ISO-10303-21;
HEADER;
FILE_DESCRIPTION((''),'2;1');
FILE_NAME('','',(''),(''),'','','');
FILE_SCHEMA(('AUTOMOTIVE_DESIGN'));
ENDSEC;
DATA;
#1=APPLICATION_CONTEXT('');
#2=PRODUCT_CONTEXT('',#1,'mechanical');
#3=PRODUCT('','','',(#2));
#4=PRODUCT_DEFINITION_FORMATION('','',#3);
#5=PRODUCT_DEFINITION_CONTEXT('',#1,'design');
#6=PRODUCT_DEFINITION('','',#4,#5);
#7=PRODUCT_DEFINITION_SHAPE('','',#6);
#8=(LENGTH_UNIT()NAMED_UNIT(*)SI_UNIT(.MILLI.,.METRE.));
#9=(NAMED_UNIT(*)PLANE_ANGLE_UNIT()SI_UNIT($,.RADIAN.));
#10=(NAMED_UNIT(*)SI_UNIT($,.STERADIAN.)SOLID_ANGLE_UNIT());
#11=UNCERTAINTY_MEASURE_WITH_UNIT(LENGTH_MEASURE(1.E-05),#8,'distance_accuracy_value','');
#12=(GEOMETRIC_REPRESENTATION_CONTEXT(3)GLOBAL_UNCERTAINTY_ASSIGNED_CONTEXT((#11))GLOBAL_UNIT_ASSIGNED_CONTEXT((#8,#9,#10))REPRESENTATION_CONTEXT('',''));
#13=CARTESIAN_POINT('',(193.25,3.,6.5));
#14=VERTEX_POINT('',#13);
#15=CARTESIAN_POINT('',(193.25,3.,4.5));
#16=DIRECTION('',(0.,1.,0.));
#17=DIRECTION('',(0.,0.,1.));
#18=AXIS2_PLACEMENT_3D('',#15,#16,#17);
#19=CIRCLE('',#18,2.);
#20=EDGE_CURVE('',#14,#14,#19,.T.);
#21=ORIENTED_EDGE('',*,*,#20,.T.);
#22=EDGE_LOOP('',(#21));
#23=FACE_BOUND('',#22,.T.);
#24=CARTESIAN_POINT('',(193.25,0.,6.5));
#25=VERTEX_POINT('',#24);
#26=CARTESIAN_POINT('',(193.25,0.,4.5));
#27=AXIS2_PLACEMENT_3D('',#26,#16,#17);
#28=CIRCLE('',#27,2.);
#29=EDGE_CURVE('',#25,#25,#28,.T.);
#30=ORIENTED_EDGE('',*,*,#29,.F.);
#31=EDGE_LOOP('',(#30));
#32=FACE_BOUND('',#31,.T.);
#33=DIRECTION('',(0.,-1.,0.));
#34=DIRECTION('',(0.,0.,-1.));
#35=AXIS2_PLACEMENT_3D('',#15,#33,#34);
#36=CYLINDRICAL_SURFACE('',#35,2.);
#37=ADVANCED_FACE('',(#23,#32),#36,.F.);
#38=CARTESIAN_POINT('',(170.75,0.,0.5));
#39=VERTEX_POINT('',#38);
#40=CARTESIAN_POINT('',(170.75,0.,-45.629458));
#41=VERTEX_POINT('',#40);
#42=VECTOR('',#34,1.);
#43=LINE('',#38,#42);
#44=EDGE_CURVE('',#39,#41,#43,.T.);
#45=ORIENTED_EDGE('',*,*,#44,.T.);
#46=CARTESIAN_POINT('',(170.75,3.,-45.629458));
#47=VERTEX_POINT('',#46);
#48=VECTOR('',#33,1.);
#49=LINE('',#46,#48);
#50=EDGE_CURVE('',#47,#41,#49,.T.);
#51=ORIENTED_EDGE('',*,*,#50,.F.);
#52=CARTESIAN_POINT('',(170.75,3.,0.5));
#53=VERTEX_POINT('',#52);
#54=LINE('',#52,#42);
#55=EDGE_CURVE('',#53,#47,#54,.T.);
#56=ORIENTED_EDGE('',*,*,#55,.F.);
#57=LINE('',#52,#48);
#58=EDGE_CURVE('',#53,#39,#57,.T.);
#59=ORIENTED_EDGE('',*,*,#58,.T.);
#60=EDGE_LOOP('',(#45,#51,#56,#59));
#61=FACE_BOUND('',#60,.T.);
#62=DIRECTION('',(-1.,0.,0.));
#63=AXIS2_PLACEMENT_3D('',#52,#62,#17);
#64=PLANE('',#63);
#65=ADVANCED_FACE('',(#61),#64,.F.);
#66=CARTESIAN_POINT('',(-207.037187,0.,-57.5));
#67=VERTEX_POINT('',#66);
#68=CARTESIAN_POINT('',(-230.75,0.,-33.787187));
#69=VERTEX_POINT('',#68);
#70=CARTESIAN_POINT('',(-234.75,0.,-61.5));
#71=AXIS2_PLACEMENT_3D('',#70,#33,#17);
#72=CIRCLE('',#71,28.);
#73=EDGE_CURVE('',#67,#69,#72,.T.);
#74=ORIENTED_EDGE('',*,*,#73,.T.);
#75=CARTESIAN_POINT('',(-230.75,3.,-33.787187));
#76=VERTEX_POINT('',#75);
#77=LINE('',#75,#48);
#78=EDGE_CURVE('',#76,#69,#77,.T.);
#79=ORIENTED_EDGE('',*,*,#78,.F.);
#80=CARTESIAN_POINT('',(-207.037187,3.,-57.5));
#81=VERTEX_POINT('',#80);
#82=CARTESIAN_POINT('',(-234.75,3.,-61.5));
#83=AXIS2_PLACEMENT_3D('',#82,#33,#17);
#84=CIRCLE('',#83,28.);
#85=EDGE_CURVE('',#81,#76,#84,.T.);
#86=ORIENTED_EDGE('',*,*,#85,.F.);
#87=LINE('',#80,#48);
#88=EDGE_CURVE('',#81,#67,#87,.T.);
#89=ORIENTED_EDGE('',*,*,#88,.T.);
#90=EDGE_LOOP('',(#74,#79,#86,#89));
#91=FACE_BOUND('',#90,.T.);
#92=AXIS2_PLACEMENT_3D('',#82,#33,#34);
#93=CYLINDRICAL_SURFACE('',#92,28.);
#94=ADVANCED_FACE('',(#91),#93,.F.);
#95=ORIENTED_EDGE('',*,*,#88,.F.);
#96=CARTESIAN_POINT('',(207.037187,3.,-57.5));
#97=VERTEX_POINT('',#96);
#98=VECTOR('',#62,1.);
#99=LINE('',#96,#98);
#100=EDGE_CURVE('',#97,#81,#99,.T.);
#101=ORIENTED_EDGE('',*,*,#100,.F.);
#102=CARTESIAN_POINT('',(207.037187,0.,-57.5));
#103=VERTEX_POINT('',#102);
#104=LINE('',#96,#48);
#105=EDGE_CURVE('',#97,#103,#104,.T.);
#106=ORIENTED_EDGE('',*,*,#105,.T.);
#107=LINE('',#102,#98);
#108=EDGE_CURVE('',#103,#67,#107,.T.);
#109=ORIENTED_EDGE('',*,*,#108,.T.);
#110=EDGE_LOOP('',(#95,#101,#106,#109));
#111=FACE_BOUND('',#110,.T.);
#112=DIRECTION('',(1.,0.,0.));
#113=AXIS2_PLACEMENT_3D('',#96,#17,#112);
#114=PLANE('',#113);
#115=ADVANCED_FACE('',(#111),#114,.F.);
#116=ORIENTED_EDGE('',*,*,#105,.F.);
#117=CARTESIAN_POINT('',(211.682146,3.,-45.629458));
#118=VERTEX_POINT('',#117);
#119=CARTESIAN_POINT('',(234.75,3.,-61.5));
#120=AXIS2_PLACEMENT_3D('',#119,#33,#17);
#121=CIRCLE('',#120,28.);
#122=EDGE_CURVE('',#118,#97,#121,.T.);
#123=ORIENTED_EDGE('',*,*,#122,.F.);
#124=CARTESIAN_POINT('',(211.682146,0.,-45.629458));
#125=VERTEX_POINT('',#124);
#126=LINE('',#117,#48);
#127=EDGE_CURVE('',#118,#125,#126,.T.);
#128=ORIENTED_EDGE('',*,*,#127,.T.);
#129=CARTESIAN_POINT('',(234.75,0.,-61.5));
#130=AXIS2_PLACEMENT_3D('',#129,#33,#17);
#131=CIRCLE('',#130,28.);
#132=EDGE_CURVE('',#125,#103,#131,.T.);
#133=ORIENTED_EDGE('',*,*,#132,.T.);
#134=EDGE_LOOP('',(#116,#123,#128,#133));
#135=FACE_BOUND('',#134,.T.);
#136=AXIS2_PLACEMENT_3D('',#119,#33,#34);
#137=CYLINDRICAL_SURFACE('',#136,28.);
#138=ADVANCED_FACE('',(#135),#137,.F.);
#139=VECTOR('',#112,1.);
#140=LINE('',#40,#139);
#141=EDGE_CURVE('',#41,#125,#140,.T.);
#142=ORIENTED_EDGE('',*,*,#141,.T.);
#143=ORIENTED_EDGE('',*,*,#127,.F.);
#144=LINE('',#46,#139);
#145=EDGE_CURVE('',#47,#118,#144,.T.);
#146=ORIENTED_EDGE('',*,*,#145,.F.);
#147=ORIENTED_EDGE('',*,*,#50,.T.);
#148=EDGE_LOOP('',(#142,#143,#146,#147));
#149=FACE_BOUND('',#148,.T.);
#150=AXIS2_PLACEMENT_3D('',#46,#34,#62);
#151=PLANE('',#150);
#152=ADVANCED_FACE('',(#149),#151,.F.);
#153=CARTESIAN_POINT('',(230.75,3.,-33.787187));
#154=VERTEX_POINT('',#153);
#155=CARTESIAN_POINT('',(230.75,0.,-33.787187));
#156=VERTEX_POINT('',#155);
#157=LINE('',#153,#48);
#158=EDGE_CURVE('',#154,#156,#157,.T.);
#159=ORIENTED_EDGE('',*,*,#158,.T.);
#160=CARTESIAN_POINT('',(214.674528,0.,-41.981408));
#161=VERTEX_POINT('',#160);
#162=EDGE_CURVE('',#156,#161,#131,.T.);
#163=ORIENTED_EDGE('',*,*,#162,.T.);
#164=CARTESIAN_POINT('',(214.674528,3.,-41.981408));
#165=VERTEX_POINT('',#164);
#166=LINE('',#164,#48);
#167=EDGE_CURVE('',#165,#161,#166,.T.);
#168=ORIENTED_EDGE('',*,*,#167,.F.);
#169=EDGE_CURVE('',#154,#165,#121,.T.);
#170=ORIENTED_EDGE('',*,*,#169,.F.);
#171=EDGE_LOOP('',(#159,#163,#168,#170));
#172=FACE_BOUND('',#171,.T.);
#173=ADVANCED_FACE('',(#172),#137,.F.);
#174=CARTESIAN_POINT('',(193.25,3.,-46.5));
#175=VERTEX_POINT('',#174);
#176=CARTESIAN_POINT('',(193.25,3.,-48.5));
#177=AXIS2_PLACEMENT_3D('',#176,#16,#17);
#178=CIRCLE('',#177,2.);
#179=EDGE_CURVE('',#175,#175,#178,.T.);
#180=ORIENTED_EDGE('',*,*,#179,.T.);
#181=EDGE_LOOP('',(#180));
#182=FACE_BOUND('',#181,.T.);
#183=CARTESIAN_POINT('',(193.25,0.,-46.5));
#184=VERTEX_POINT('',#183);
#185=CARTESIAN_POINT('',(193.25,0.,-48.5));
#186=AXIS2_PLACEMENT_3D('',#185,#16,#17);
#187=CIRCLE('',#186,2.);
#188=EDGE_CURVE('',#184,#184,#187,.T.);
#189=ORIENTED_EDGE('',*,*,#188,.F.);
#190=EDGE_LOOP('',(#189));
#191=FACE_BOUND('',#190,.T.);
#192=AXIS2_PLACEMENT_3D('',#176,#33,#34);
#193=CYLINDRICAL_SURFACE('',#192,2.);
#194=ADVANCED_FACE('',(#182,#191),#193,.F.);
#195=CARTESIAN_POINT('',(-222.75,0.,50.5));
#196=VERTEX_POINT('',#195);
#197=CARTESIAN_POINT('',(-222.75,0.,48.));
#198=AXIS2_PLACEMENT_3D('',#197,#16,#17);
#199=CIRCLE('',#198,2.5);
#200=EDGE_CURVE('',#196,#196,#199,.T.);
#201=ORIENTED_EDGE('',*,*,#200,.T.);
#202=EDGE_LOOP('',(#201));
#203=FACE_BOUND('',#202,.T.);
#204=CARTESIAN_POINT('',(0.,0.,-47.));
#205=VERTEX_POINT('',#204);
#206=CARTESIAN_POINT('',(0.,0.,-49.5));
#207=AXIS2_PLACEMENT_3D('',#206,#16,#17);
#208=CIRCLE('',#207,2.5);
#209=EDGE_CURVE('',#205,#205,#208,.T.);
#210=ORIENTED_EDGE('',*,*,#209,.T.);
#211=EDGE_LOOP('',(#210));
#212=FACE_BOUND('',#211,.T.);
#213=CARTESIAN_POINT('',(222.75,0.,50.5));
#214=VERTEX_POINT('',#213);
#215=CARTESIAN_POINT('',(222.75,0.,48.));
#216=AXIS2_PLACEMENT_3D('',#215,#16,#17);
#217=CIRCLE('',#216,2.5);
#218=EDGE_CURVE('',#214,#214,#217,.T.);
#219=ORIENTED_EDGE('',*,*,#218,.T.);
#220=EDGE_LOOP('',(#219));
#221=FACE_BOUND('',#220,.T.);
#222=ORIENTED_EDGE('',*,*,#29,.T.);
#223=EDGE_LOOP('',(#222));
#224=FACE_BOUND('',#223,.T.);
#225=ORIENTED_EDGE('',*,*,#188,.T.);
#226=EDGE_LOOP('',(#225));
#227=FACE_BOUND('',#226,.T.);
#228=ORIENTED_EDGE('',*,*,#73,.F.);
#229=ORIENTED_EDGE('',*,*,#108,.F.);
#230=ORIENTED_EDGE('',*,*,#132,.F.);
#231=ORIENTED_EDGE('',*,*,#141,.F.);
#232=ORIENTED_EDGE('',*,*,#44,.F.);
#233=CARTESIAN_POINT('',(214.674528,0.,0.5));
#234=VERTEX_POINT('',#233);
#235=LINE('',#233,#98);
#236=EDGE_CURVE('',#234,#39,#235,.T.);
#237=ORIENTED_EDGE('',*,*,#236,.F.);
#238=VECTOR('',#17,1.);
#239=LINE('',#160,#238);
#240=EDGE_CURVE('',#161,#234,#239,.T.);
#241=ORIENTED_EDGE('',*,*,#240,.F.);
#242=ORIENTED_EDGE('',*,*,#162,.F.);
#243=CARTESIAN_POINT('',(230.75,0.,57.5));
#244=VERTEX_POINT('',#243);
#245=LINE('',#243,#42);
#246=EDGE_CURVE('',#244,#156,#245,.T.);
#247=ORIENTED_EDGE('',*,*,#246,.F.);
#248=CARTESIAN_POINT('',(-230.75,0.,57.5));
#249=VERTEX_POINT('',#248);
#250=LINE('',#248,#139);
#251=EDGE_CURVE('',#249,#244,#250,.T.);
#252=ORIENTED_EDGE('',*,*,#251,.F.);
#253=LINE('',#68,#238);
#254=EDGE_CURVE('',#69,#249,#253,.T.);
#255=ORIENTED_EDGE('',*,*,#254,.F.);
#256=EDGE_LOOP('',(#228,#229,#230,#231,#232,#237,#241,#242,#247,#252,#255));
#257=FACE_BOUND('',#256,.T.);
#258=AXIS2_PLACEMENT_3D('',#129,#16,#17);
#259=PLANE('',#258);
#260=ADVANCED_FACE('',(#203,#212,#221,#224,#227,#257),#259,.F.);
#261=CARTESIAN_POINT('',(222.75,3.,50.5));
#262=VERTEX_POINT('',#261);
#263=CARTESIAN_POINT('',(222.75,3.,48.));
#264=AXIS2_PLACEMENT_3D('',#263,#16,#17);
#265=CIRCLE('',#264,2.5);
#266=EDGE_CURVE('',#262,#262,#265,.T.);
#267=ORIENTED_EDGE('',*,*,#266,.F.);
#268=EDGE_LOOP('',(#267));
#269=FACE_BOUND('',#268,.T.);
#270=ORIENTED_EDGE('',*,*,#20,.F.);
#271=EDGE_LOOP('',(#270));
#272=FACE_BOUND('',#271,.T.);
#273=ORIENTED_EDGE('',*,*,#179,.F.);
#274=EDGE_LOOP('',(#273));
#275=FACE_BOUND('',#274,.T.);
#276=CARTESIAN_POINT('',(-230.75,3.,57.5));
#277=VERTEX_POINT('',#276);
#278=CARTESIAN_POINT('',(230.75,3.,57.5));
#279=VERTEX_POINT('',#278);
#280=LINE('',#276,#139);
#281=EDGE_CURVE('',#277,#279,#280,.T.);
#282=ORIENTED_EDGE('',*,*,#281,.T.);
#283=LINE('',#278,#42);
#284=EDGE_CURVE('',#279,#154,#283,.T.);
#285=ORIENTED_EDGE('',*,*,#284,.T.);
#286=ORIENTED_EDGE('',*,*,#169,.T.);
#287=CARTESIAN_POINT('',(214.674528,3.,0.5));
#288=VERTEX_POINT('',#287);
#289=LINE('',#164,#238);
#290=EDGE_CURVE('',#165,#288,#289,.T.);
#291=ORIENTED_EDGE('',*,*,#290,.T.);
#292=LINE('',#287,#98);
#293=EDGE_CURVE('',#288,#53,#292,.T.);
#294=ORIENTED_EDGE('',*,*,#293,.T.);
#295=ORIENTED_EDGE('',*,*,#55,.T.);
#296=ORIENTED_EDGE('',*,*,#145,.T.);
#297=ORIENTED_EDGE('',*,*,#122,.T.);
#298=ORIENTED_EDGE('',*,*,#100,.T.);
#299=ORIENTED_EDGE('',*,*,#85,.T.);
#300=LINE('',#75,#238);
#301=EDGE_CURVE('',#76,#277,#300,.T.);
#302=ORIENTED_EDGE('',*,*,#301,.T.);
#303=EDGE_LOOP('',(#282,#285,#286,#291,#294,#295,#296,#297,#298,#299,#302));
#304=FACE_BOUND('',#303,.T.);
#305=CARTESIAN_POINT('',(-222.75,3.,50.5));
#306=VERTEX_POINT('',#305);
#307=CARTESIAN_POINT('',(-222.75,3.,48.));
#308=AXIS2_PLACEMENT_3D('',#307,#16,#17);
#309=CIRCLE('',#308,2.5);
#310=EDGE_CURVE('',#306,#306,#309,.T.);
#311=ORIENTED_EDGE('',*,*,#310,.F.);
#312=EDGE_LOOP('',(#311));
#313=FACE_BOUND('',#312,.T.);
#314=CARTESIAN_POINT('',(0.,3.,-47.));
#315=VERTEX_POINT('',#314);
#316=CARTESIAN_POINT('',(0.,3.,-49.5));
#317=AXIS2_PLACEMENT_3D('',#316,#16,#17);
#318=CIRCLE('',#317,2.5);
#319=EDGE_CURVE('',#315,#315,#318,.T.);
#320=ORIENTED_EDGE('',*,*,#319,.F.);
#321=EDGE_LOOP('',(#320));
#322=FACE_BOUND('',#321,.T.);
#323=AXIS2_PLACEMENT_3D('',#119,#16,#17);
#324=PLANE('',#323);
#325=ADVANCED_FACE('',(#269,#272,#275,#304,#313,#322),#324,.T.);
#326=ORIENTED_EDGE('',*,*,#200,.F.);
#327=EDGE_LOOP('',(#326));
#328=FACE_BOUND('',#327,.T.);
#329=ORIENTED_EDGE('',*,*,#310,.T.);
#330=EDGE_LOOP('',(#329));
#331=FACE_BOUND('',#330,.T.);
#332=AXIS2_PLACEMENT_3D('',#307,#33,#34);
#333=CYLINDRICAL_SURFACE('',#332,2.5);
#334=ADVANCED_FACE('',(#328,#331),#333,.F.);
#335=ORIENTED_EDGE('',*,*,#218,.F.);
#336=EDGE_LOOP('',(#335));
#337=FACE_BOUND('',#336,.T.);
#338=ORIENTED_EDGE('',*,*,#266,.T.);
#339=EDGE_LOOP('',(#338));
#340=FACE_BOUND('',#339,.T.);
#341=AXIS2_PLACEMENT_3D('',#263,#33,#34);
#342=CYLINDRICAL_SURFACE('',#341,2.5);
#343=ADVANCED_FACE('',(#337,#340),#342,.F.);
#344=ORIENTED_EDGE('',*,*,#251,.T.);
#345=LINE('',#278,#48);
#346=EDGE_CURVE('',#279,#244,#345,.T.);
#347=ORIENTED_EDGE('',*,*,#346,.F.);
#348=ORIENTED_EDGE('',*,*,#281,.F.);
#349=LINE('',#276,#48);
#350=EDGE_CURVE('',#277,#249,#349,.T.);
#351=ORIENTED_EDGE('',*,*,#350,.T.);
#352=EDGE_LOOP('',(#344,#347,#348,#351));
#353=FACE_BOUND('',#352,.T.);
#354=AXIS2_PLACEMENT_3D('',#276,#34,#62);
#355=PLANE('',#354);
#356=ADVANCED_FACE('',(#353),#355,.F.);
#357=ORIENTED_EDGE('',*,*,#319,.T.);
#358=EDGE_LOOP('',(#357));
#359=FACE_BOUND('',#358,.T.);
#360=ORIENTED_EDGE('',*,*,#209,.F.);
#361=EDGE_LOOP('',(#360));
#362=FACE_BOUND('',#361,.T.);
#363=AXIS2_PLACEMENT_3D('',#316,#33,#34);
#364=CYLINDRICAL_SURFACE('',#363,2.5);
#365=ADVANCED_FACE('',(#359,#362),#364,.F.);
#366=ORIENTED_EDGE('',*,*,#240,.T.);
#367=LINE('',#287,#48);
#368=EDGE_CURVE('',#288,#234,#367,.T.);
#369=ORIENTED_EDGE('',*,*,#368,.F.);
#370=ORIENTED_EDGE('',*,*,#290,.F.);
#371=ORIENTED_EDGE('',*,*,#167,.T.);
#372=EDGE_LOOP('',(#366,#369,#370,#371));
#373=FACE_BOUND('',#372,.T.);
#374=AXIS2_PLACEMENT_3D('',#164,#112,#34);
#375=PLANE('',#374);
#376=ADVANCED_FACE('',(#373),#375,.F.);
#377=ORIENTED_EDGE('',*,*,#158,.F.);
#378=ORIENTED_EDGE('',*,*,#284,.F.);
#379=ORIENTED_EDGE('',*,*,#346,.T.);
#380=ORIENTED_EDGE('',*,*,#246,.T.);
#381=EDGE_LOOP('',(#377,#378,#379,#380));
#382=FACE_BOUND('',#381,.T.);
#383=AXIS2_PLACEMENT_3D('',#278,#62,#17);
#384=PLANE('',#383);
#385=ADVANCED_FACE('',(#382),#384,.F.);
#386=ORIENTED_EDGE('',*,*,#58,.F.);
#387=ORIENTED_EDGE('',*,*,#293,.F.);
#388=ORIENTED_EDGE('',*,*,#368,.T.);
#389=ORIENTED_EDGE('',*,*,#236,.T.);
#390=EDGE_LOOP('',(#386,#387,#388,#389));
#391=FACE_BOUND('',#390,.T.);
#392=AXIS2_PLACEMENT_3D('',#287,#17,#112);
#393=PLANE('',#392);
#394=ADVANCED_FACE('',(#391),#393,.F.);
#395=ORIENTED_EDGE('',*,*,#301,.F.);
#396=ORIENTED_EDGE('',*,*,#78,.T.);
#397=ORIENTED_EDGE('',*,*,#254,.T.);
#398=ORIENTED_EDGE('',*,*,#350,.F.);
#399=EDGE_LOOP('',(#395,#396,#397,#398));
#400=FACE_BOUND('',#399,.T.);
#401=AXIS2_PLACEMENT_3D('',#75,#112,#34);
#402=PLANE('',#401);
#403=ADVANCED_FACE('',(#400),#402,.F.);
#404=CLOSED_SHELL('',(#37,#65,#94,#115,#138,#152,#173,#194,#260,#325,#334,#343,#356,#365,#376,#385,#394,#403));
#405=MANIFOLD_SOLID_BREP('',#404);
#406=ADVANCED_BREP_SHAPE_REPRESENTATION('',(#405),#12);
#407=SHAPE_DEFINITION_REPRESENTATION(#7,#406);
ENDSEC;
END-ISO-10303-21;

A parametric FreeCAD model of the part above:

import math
import FreeCAD as App
import Part
import Sketcher

V = App.Vector
Q = App.Units.Quantity

doc = App.newDocument("Part")
params = doc.addObject("Spreadsheet::Sheet", "Params")
for row, (alias, value) in enumerate([
    ("sketch1_diameter", "5 mm"),
    ("sketch1_diameter2", "4 mm"),
    ("sketch1_radius", "28 mm"),
    ("sketch1_width", "461.5 mm"),
    ("pad1_length", "3 mm"),
], start=1):
    params.set(f"A{row}", alias)
    params.set(f"B{row}", "=" + value)
    params.setAlias(f"B{row}", alias)

body = doc.addObject("PartDesign::Body", "Body")

# Sketch on XZ plane
sketch1 = body.newObject("Sketcher::SketchObject", "Sketch")
sketch1.AttachmentSupport = (doc.getObject("XZ_Plane"), [""])
sketch1.MapMode = "FlatFace"
sketch1.addGeometry([
    Part.LineSegment(V(-230.75, 57.5, 0), V(230.75, 57.5, 0)),  # 0
    Part.LineSegment(V(230.75, 57.5, 0), V(230.75, -33.787187, 0)),  # 1
    Part.ArcOfCircle(Part.Circle(V(234.75, -61.5, 0), V(0, 0, 1), 28), math.radians(98.213211), math.radians(135.805796)),  # 2
    Part.LineSegment(V(214.674528, -41.981408, 0), V(214.674528, 0.5, 0)),  # 3
    Part.LineSegment(V(214.674528, 0.5, 0), V(170.75, 0.5, 0)),  # 4
    Part.LineSegment(V(170.75, 0.5, 0), V(170.75, -45.629458, 0)),  # 5
    Part.LineSegment(V(170.75, -45.629458, 0), V(211.682146, -45.629458, 0)),  # 6
    Part.ArcOfCircle(Part.Circle(V(234.75, -61.5, 0), V(0, 0, 1), 28), math.radians(145.472268), math.radians(171.786789)),  # 7
    Part.LineSegment(V(207.037187, -57.5, 0), V(-207.037187, -57.5, 0)),  # 8
    Part.ArcOfCircle(Part.Circle(V(-234.75, -61.5, 0), V(0, 0, 1), 28), math.radians(8.213211), math.radians(81.786789)),  # 9
    Part.LineSegment(V(-230.75, -33.787187, 0), V(-230.75, 57.5, 0)),  # 10
    Part.Circle(V(-222.75, 48, 0), V(0, 0, 1), 2.5),  # 11
    Part.Circle(V(222.75, 48, 0), V(0, 0, 1), 2.5),  # 12
    Part.Circle(V(193.25, 4.5, 0), V(0, 0, 1), 2),  # 13
    Part.Circle(V(0, -49.5, 0), V(0, 0, 1), 2.5),  # 14
    Part.Circle(V(193.25, -48.5, 0), V(0, 0, 1), 2),  # 15
], False)
sketch1.addConstraint([
    Sketcher.Constraint("Coincident", 0, 2, 1, 1),
    Sketcher.Constraint("Coincident", 1, 2, 2, 1),
    Sketcher.Constraint("Coincident", 2, 2, 3, 1),
    Sketcher.Constraint("Coincident", 3, 2, 4, 1),
    Sketcher.Constraint("Coincident", 4, 2, 5, 1),
    Sketcher.Constraint("Coincident", 5, 2, 6, 1),
    Sketcher.Constraint("Coincident", 6, 2, 7, 1),
    Sketcher.Constraint("Coincident", 7, 2, 8, 1),
    Sketcher.Constraint("Coincident", 8, 2, 9, 1),
    Sketcher.Constraint("Coincident", 9, 2, 10, 1),
    Sketcher.Constraint("Coincident", 10, 2, 0, 1),
    Sketcher.Constraint("Horizontal", 0),
    Sketcher.Constraint("Vertical", 1),
    Sketcher.Constraint("Vertical", 3),
    Sketcher.Constraint("Horizontal", 4),
    Sketcher.Constraint("Vertical", 5),
    Sketcher.Constraint("Horizontal", 6),
    Sketcher.Constraint("Horizontal", 8),
    Sketcher.Constraint("Vertical", 10),
    Sketcher.Constraint("Coincident", 7, 3, 2, 3),
    Sketcher.Constraint("Equal", 2, 7),
    Sketcher.Constraint("Equal", 7, 9),
    Sketcher.Constraint("Equal", 11, 12),
    Sketcher.Constraint("Equal", 12, 14),
    Sketcher.Constraint("Equal", 13, 15),
    Sketcher.Constraint("Symmetric", 2, 3, 9, 3, -2),
    Sketcher.Constraint("Symmetric", 11, 3, 12, 3, -2),
    Sketcher.Constraint("PointOnObject", 14, 3, -2),
    Sketcher.Constraint("Horizontal", 1, 2, 9, 2),
    Sketcher.Constraint("Vertical", 13, 3, 15, 3),
    Sketcher.Constraint("Diameter", 11, Q("5 mm")),
    Sketcher.Constraint("Diameter", 13, Q("4 mm")),
    Sketcher.Constraint("Radius", 2, Q("28 mm")),
    Sketcher.Constraint("DistanceX", 0, 1, 0, 2, Q("461.5 mm")),
    Sketcher.Constraint("DistanceY", -1, 1, 11, 3, Q("48 mm")),
    Sketcher.Constraint("DistanceX", 9, 3, 11, 3, Q("12 mm")),
    Sketcher.Constraint("DistanceY", 2, 3, 13, 3, Q("66 mm")),
    Sketcher.Constraint("DistanceX", 11, 3, 13, 3, Q("416 mm")),
    Sketcher.Constraint("DistanceY", 14, 3, 13, 3, Q("54 mm")),
    Sketcher.Constraint("DistanceY", 2, 3, 15, 3, Q("13 mm")),
    Sketcher.Constraint("DistanceX", 12, 3, 0, 2, Q("8 mm")),
    Sketcher.Constraint("DistanceY", 13, 3, 0, 2, Q("53 mm")),
    Sketcher.Constraint("DistanceY", 3, 2, 13, 3, Q("4 mm")),
    Sketcher.Constraint("DistanceX", 4, 2, 1, 2, Q("60 mm")),
    Sketcher.Constraint("DistanceY", 7, 2, 15, 3, Q("9 mm")),
    Sketcher.Constraint("DistanceY", 2, 3, -1, 1, Q("61.5 mm")),
    Sketcher.Constraint("DistanceX", 4, 2, 4, 1, Q("43.924528 mm")),
    Sketcher.Constraint("DistanceY", 5, 2, 5, 1, Q("46.129458 mm")),
])
sketch1.setExpression("Constraints[30]", "Params.sketch1_diameter")
sketch1.setExpression("Constraints[31]", "Params.sketch1_diameter2")
sketch1.setExpression("Constraints[32]", "Params.sketch1_radius")
sketch1.setExpression("Constraints[33]", "Params.sketch1_width")
pad1 = body.newObject("PartDesign::Pad", "Pad")
pad1.Profile = sketch1
pad1.setExpression("Length", "Params.pad1_length")
pad1.Reversed = True

doc.recompute()
